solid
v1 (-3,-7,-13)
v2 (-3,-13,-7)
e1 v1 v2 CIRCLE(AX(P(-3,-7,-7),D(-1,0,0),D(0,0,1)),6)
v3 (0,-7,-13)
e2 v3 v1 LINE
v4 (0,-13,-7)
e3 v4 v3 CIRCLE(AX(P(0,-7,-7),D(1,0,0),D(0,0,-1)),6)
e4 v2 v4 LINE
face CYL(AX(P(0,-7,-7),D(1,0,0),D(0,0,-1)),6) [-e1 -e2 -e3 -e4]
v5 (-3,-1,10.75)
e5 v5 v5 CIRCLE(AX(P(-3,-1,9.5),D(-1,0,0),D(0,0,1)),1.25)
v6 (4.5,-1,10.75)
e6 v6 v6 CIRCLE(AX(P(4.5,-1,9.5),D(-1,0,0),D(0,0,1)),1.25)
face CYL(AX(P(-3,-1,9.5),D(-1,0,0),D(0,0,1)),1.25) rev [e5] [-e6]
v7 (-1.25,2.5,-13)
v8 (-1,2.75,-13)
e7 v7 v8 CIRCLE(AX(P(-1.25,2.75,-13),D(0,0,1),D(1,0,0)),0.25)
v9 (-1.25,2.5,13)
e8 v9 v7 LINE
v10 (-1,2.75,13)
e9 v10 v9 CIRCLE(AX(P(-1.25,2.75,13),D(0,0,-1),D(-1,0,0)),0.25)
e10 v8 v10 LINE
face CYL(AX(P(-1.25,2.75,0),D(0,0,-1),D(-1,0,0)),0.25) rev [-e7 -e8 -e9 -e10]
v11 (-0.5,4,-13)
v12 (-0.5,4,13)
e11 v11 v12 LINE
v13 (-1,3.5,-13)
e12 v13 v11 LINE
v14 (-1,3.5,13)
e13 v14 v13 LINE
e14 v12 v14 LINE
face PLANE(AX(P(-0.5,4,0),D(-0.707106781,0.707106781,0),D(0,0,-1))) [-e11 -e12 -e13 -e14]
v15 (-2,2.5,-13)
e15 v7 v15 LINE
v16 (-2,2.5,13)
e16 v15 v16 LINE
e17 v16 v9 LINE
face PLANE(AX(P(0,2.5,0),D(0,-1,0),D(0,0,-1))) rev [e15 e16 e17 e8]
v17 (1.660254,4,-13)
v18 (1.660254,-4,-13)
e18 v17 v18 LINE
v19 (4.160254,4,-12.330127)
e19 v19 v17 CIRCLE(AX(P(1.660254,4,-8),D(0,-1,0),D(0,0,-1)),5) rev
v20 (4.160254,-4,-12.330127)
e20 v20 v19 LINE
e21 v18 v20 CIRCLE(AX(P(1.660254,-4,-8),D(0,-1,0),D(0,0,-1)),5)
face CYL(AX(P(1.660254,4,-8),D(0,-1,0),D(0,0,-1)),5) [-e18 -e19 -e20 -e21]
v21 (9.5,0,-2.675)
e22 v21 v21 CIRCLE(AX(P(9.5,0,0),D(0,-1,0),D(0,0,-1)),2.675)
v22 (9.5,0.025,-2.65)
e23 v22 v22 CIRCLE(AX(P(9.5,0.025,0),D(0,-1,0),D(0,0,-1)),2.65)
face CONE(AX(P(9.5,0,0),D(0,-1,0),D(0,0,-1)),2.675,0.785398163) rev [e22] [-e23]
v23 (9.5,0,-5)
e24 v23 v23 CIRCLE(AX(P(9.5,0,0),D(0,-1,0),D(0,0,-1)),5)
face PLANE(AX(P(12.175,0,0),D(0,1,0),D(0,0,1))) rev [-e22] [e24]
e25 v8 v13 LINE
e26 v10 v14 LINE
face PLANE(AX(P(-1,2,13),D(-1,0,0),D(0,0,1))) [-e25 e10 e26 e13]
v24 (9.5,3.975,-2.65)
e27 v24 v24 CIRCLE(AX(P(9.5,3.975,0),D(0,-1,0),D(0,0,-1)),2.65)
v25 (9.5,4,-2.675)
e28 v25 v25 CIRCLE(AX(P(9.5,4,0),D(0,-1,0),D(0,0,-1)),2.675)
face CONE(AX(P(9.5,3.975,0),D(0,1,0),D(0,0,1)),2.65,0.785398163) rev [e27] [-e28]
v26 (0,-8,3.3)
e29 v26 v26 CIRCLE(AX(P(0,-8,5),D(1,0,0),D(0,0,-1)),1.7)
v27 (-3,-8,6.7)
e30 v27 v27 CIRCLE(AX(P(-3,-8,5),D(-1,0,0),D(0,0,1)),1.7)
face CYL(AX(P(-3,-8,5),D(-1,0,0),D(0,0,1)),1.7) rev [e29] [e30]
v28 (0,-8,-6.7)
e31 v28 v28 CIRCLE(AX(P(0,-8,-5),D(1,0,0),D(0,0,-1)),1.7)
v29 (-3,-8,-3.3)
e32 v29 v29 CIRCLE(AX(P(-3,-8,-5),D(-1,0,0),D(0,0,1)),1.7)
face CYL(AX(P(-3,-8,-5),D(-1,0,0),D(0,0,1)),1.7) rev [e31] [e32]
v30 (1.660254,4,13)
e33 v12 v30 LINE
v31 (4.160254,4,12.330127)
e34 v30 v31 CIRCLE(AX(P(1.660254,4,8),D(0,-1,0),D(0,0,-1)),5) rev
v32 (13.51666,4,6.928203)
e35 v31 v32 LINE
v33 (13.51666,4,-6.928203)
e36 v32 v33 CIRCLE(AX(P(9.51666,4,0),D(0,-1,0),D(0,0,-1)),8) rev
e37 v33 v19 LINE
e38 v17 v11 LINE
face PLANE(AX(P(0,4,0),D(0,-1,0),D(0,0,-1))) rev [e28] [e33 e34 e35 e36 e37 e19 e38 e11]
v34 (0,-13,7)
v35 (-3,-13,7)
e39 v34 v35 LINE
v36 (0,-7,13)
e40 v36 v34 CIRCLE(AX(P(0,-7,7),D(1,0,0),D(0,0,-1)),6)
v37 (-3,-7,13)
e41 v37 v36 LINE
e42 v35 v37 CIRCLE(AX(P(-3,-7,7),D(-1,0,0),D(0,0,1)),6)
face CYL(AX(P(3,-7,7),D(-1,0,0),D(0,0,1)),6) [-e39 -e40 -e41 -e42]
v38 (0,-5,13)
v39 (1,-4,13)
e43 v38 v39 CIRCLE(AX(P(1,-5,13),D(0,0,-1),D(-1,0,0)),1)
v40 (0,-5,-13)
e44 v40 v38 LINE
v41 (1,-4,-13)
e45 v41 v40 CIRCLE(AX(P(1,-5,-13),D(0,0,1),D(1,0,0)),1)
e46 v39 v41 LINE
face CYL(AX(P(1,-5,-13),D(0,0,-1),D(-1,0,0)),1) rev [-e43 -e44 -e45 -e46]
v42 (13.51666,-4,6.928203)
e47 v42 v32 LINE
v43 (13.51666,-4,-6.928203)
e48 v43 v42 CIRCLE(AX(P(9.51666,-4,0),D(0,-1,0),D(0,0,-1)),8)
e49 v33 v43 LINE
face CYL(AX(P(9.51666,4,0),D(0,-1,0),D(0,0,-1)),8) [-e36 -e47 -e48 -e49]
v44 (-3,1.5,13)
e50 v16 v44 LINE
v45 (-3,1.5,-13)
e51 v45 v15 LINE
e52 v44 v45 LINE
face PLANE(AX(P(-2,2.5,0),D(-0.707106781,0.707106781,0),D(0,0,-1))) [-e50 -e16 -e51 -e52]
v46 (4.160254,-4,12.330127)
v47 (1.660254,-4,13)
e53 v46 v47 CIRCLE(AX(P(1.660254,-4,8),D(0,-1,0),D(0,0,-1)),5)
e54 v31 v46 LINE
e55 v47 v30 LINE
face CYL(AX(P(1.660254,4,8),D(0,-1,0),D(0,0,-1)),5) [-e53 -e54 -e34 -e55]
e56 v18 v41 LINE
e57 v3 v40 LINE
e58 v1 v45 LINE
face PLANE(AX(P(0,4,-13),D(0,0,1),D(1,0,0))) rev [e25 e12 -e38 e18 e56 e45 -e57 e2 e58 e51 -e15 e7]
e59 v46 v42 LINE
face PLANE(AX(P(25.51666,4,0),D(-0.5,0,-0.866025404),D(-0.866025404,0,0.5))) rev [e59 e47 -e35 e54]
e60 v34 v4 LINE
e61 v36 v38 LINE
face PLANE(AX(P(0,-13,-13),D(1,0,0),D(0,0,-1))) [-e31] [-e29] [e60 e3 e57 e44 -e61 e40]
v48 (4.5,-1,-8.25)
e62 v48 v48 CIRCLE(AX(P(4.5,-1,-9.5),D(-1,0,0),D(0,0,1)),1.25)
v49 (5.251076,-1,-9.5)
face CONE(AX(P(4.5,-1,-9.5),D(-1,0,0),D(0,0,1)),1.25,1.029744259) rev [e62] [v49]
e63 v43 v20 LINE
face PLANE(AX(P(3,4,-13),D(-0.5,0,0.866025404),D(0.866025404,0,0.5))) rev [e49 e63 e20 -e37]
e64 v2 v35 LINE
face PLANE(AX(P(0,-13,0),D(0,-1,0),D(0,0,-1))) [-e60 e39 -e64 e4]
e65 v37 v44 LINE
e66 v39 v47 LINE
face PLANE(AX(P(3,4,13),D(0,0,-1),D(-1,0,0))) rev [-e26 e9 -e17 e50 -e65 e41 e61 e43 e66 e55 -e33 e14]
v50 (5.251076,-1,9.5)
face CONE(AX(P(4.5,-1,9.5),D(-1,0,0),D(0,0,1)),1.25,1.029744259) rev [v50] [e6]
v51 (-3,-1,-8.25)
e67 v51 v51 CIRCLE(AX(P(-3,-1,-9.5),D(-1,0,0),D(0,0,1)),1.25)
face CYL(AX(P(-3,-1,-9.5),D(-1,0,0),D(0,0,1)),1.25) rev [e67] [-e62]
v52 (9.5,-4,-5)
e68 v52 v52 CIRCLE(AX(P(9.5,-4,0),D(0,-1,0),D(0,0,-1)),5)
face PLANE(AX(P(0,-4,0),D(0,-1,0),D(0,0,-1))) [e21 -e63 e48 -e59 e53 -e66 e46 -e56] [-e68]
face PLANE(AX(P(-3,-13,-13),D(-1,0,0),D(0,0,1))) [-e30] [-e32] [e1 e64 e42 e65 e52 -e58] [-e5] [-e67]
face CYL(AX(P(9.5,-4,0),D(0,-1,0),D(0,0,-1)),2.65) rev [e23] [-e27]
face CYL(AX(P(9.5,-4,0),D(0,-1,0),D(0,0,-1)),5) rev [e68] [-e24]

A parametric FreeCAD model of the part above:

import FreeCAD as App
import Part
import Sketcher
Q = App.Units.Quantity


def edges_at(feature, points):
    """Names of the edges that pass closest to the given points."""
    edges = feature.Shape.Edges
    near = lambda p: min(range(len(edges)), key=lambda i: edges[i].distToShape(Part.Vertex(*p))[0])
    return sorted({f"Edge{near(p) + 1}" for p in points})


def add_polygon(sketch, points):
    """Adds a closed chain of lines whose ends are joined by coincident constraints."""
    first, n = sketch.GeometryCount, len(points)
    for a, b in zip(points, points[1:] + points[:1]):
        sketch.addGeometry(Part.LineSegment(App.Vector(*a, 0), App.Vector(*b, 0)), False)
    for i in range(n):
        sketch.addConstraint(Sketcher.Constraint("Coincident", first + i, 2, first + (i + 1) % n, 1))

doc = App.newDocument("Part")
params = doc.addObject("Spreadsheet::Sheet", "Params")
for row, (alias, value) in enumerate([
    ("sketch1_width", "3 mm"),
    ("sketch1_height", "26 mm"),
    ("pad1_length", "8 mm"),
    ("fillet_radius", "8 mm"),
    ("sketch2_width", "3 mm"),
    ("sketch2_height", "26 mm"),
    ("pad2_length", "15.5 mm"),
    ("sketch3_diameter", "2.5 mm"),
    ("hole_diameter", "2.5 mm"),
    ("hole_depth", "7.5 mm"),
    ("sketch4_diameter", "3.4 mm"),
    ("hole2_diameter", "3.4 mm"),
    ("sketch5_width", "1 mm"),
    ("sketch5_height", "26 mm"),
    ("pad3_length", "2 mm"),
    ("sketch6_width", "8 mm"),
    ("sketch6_height", "5 mm"),
    ("sketch6_width2", "3.95 mm"),
    ("groove_angle", "360 deg"),
    ("fillet2_radius", "6 mm"),
    ("fillet3_radius", "1 mm"),
    ("fillet4_radius", "5 mm"),
    ("fillet5_radius", "0.25 mm"),
    ("chamfer_size", "1 mm"),
    ("chamfer2_size", "0.5 mm"),
], start=1):
    params.set(f"A{row}", alias)
    params.set(f"B{row}", "=" + value)
    params.setAlias(f"B{row}", alias)

body = doc.addObject("PartDesign::Body", "Body")

sketch1 = body.newObject("Sketcher::SketchObject", "Sketch")
sketch1.AttachmentSupport = (doc.getObject("XZ_Plane"), [""])
sketch1.MapMode = "FlatFace"
add_polygon(sketch1, [(0, -13), (0, 13), (3, 13), (25.5, 0), (3, -13)])
sketch1.addConstraint([
    Sketcher.Constraint("Vertical", 0),
    Sketcher.Constraint("Horizontal", 1),
    Sketcher.Constraint("Horizontal", 4),
    Sketcher.Constraint("Symmetric", 0, 2, 4, 2, -1, 1),
    Sketcher.Constraint("PointOnObject", 2, 2, -1),
    Sketcher.Constraint("Vertical", 1, 2, 3, 2),
    Sketcher.Constraint("DistanceX", 1, 1, 1, 2, 3.0),
    Sketcher.Constraint("DistanceY", 0, 1, 0, 2, 26.0),
    Sketcher.Constraint("Angle", 2, Q("-30 deg")),
])
sketch1.setExpression("Constraints[11]", "Params.sketch1_width")
sketch1.setExpression("Constraints[12]", "Params.sketch1_height")
pad1 = body.newObject("PartDesign::Pad", "Pad")
pad1.Profile = sketch1
pad1.setExpression("Length", "Params.pad1_length")
pad1.Midplane = True
doc.recompute()

fillet = body.newObject("PartDesign::Fillet", "Fillet")
fillet.Base = (pad1, edges_at(pad1, [(25.517, 0, 0)]))
fillet.setExpression("Radius", "Params.fillet_radius")

sketch2 = body.newObject("Sketcher::SketchObject", "Sketch001")
sketch2.AttachmentSupport = (doc.getObject("XZ_Plane"), [""])
sketch2.MapMode = "FlatFace"
sketch2.AttachmentOffset = App.Placement(App.Vector(0, 0, -2.5), App.Rotation())
add_polygon(sketch2, [(-3, -13), (-3, 13), (0, 13), (0, -13)])
sketch2.addConstraint([
    Sketcher.Constraint("Vertical", 0),
    Sketcher.Constraint("Horizontal", 1),
    Sketcher.Constraint("Vertical", 2),
    Sketcher.Constraint("Horizontal", 3),
    Sketcher.Constraint("Symmetric", 1, 2, 2, 2, -1, 1),
    Sketcher.Constraint("DistanceX", 1, 1, 1, 2, 3.0),
    Sketcher.Constraint("DistanceY", 0, 1, 0, 2, 26.0),
])
sketch2.setExpression("Constraints[9]", "Params.sketch2_width")
sketch2.setExpression("Constraints[10]", "Params.sketch2_height")
pad2 = body.newObject("PartDesign::Pad", "Pad001")
pad2.Profile = sketch2
pad2.setExpression("Length", "Params.pad2_length")

sketch3 = body.newObject("Sketcher::SketchObject", "Sketch002")
sketch3.AttachmentSupport = (doc.getObject("YZ_Plane"), [""])
sketch3.MapMode = "FlatFace"
sketch3.AttachmentOffset = App.Placement(App.Vector(0, 0, -3), App.Rotation())
sketch3.addGeometry([
    Part.Circle(App.Vector(-1, 9.5, 0), App.Vector(0, 0, 1), 1.2),
    Part.Circle(App.Vector(-1, -9.5, 0), App.Vector(0, 0, 1), 1.2),
], False)
sketch3.addConstraint([
    Sketcher.Constraint("Equal", 0, 1),
    Sketcher.Constraint("Symmetric", 0, 3, 1, 3, -1),
    Sketcher.Constraint("Diameter", 0, 2.5),
    Sketcher.Constraint("DistanceX", 0, 3, -1, 1, 1.0),
    Sketcher.Constraint("DistanceY", 1, 3, 0, 3, 19.0),
])
sketch3.setExpression("Constraints[2]", "Params.sketch3_diameter")
doc.recompute()
hole = body.newObject("PartDesign::Hole", "Hole")
hole.Profile = sketch3
hole.ThreadType = "None"
hole.setExpression("Diameter", "Params.hole_diameter")
hole.DepthType = "Dimension"
hole.setExpression("Depth", "Params.hole_depth")
hole.DrillPoint = "Angled"
hole.DrillPointAngle = 118
hole.Reversed = True

sketch4 = body.newObject("Sketcher::SketchObject", "Sketch003")
sketch4.AttachmentSupport = (doc.getObject("YZ_Plane"), [""])
sketch4.MapMode = "FlatFace"
sketch4.AttachmentOffset = App.Placement(App.Vector(0, 0, -3), App.Rotation())
sketch4.addGeometry([
    Part.Circle(App.Vector(-8, -5, 0), App.Vector(0, 0, 1), 1.7),
    Part.Circle(App.Vector(-8, 5, 0), App.Vector(0, 0, 1), 1.7),
], False)
sketch4.addConstraint([
    Sketcher.Constraint("Equal", 0, 1),
    Sketcher.Constraint("Symmetric", 0, 3, 1, 3, -1),
    Sketcher.Constraint("Diameter", 0, 3.4),
    Sketcher.Constraint("DistanceX", 0, 3, -1, 1, 8.0),
    Sketcher.Constraint("DistanceY", 0, 3, -1, 1, 5.0),
])
sketch4.setExpression("Constraints[2]", "Params.sketch4_diameter")
doc.recompute()
hole2 = body.newObject("PartDesign::Hole", "Hole001")
hole2.Profile = sketch4
hole2.ThreadType = "None"
hole2.setExpression("Diameter", "Params.hole2_diameter")
hole2.DepthType = "ThroughAll"
hole2.Reversed = True

sketch5 = body.newObject("Sketcher::SketchObject", "Sketch004")
sketch5.AttachmentSupport = (doc.getObject("XZ_Plane"), [""])
sketch5.MapMode = "FlatFace"
sketch5.AttachmentOffset = App.Placement(App.Vector(0, 0, -4), App.Rotation())
add_polygon(sketch5, [(-1, -13), (-1, 13), (0, 13), (0, -13)])
sketch5.addConstraint([
    Sketcher.Constraint("Vertical", 0),
    Sketcher.Constraint("Horizontal", 1),
    Sketcher.Constraint("Vertical", 2),
    Sketcher.Constraint("Horizontal", 3),
    Sketcher.Constraint("Symmetric", 1, 2, 2, 2, -1, 1),
    Sketcher.Constraint("DistanceX", 1, 1, 1, 2, 1.0),
    Sketcher.Constraint("DistanceY", 0, 1, 0, 2, 26.0),
])
sketch5.setExpression("Constraints[9]", "Params.sketch5_width")
sketch5.setExpression("Constraints[10]", "Params.sketch5_height")
pad3 = body.newObject("PartDesign::Pad", "Pad002")
pad3.Profile = sketch5
pad3.setExpression("Length", "Params.pad3_length")

sketch6 = body.newObject("Sketcher::SketchObject", "Sketch005")
sketch6.AttachmentSupport = (doc.getObject("YZ_Plane"), [""])
sketch6.MapMode = "FlatFace"
sketch6.AttachmentOffset = App.Placement(App.Vector(0, 0, 9.5), App.Rotation())
add_polygon(sketch6, [(4, 0), (-4, 0), (-4, -5), (0, -5), (0, -2.675), (0.025, -2.65), (3.975, -2.65), (4, -2.675)])
sketch6.addConstraint([
    Sketcher.Constraint("Horizontal", 0),
    Sketcher.Constraint("Vertical", 1),
    Sketcher.Constraint("Horizontal", 2),
    Sketcher.Constraint("Vertical", 3),
    Sketcher.Constraint("Horizontal", 5),
    Sketcher.Constraint("Vertical", 7),
    Sketcher.Constraint("Symmetric", 0, 2, 7, 2, -1, 1),
    Sketcher.Constraint("PointOnObject", 2, 2, -2),
    Sketcher.Constraint("Perpendicular", 4, 6),
    Sketcher.Constraint("Horizontal", 3, 2, 6, 2),
    Sketcher.Constraint("Equal", 4, 6),
    Sketcher.Constraint("DistanceX", 0, 2, 0, 1, 8.0),
    Sketcher.Constraint("DistanceY", 1, 2, 1, 1, 5.0),
    Sketcher.Constraint("DistanceX", 5, 1, 5, 2, 3.95),
    Sketcher.Constraint("DistanceY", 3, 1, 3, 2, 2.325),
])
sketch6.setExpression("Constraints[19]", "Params.sketch6_width")
sketch6.setExpression("Constraints[20]", "Params.sketch6_height")
sketch6.setExpression("Constraints[21]", "Params.sketch6_width2")
groove = body.newObject("PartDesign::Groove", "Groove")
groove.Profile = sketch6
groove.ReferenceAxis = (sketch6, ["H_Axis"])
groove.setExpression("Angle", "Params.groove_angle")
doc.recompute()

fillet2 = body.newObject("PartDesign::Fillet", "Fillet001")
fillet2.Base = (groove, edges_at(groove, [(-1.5, -13, 13), (-1.5, -13, -13)]))
fillet2.setExpression("Radius", "Params.fillet2_radius")
doc.recompute()

fillet3 = body.newObject("PartDesign::Fillet", "Fillet002")
fillet3.Base = (fillet2, edges_at(fillet2, [(0, -4, 0)]))
fillet3.setExpression("Radius", "Params.fillet3_radius")
doc.recompute()

fillet4 = body.newObject("PartDesign::Fillet", "Fillet003")
fillet4.Base = (fillet3, edges_at(fillet3, [(3, 0, -13), (3, 0, 13)]))
fillet4.setExpression("Radius", "Params.fillet4_radius")
doc.recompute()

fillet5 = body.newObject("PartDesign::Fillet", "Fillet004")
fillet5.Base = (fillet4, edges_at(fillet4, [(-1, 2.5, 0)]))
fillet5.setExpression("Radius", "Params.fillet5_radius")
doc.recompute()

chamfer = body.newObject("PartDesign::Chamfer", "Chamfer")
chamfer.Base = (fillet5, edges_at(fillet5, [(-3, 2.5, 0)]))
chamfer.setExpression("Size", "Params.chamfer_size")
doc.recompute()

chamfer2 = body.newObject("PartDesign::Chamfer", "Chamfer001")
chamfer2.Base = (chamfer, edges_at(chamfer, [(-1, 4, 0)]))
chamfer2.setExpression("Size", "Params.chamfer2_size")

doc.recompute()
